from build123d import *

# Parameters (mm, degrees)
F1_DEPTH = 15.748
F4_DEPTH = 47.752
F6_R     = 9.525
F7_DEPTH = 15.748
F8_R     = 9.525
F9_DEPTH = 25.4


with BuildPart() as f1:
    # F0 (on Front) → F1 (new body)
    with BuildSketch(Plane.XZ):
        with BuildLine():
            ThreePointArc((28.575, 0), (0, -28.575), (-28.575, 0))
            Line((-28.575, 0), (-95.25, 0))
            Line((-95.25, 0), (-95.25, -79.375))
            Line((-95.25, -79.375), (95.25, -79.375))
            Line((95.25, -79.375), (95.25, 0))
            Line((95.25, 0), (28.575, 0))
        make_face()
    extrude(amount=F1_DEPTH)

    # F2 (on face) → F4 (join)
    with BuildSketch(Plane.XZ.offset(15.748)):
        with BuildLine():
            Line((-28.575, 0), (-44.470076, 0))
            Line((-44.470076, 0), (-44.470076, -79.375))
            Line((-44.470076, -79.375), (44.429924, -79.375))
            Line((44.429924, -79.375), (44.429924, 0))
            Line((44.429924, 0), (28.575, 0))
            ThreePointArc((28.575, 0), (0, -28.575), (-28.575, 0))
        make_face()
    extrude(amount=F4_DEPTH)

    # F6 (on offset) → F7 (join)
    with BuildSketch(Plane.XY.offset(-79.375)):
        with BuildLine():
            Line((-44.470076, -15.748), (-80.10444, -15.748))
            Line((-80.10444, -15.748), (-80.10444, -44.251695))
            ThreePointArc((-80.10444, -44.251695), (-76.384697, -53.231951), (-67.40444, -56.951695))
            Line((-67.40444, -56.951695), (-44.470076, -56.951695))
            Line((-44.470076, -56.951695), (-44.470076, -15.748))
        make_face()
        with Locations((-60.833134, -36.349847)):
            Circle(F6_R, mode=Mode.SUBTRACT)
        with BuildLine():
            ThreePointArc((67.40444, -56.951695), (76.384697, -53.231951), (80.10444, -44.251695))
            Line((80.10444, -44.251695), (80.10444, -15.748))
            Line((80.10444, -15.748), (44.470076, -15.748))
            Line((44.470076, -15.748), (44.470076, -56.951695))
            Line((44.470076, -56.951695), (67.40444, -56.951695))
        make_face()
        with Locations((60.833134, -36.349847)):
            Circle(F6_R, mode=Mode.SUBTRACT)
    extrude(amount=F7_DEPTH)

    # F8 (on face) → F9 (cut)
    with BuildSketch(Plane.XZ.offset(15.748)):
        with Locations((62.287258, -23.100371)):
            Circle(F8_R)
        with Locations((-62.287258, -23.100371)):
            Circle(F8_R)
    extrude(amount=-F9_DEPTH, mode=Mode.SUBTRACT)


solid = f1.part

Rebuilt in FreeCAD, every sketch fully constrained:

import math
import FreeCAD as App
import Part
import Sketcher

V = App.Vector
Q = App.Units.Quantity

doc = App.newDocument("Part")
body = doc.addObject("PartDesign::Body", "Body")

# Sketch on XZ plane
sketch1 = body.newObject("Sketcher::SketchObject", "Sketch")
sketch1.AttachmentSupport = (doc.getObject("XZ_Plane"), [""])
sketch1.MapMode = "FlatFace"
sketch1.addGeometry(Part.ArcOfCircle(Part.Circle(V(0, 0, 0), V(0, 0, 1), 28.575), math.radians(180), math.radians(360)), False)
sketch1.addGeometry(Part.LineSegment(V(-28.575, 0, 0), V(-95.25, 0, 0)), False)
sketch1.addGeometry(Part.LineSegment(V(-95.25, 0, 0), V(-95.25, -79.375, 0)), False)
sketch1.addGeometry(Part.LineSegment(V(-95.25, -79.375, 0), V(95.25, -79.375, 0)), False)
sketch1.addGeometry(Part.LineSegment(V(95.25, -79.375, 0), V(95.25, 0, 0)), False)
sketch1.addGeometry(Part.LineSegment(V(95.25, 0, 0), V(28.575, 0, 0)), False)
sketch1.addConstraint(Sketcher.Constraint("Coincident", 0, 1, 1, 1))
sketch1.addConstraint(Sketcher.Constraint("Coincident", 1, 2, 2, 1))
sketch1.addConstraint(Sketcher.Constraint("Coincident", 2, 2, 3, 1))
sketch1.addConstraint(Sketcher.Constraint("Coincident", 3, 2, 4, 1))
sketch1.addConstraint(Sketcher.Constraint("Coincident", 4, 2, 5, 1))
sketch1.addConstraint(Sketcher.Constraint("Coincident", 5, 2, 0, 2))
sketch1.addConstraint(Sketcher.Constraint("Horizontal", 1))
sketch1.addConstraint(Sketcher.Constraint("Vertical", 2))
sketch1.addConstraint(Sketcher.Constraint("Horizontal", 3))
sketch1.addConstraint(Sketcher.Constraint("Vertical", 4))
sketch1.addConstraint(Sketcher.Constraint("Horizontal", 5))
sketch1.addConstraint(Sketcher.Constraint("Coincident", 0, 3, -1, 1))
sketch1.addConstraint(Sketcher.Constraint("Symmetric", 1, 2, 4, 2, -1, 1))
sketch1.addConstraint(Sketcher.Constraint("PointOnObject", 0, 1, -1))
sketch1.addConstraint(Sketcher.Constraint("DistanceX", 3, 1, 3, 2, Q("7.5 in")))
sketch1.addConstraint(Sketcher.Constraint("Radius", 0, Q("1.125 in")))
sketch1.addConstraint(Sketcher.Constraint("DistanceY", 2, 2, 2, 1, Q("3.125 in")))
pad1 = body.newObject("PartDesign::Pad", "Pad")
pad1.Profile = sketch1
pad1.Length = Q("0.62 in")

# Sketch on XZ plane
sketch2 = body.newObject("Sketcher::SketchObject", "Sketch001")
sketch2.AttachmentSupport = (doc.getObject("XZ_Plane"), [""])
sketch2.MapMode = "FlatFace"
sketch2.AttachmentOffset = App.Placement(V(0, 0, 0.62 * 25.4), App.Rotation())
sketch2.addGeometry(Part.LineSegment(V(-28.575, 0, 0), V(-44.470076, 0, 0)), False)
sketch2.addGeometry(Part.LineSegment(V(-44.470076, 0, 0), V(-44.470076, -79.375, 0)), False)
sketch2.addGeometry(Part.LineSegment(V(-44.470076, -79.375, 0), V(44.429924, -79.375, 0)), False)
sketch2.addGeometry(Part.LineSegment(V(44.429924, -79.375, 0), V(44.429924, 0, 0)), False)
sketch2.addGeometry(Part.LineSegment(V(44.429924, 0, 0), V(28.575, 0, 0)), False)
sketch2.addGeometry(Part.ArcOfCircle(Part.Circle(V(0, 0, 0), V(0, 0, 1), 28.575), math.radians(180), math.radians(360)), False)
sketch2.addConstraint(Sketcher.Constraint("Coincident", 0, 2, 1, 1))
sketch2.addConstraint(Sketcher.Constraint("Coincident", 1, 2, 2, 1))
sketch2.addConstraint(Sketcher.Constraint("Coincident", 2, 2, 3, 1))
sketch2.addConstraint(Sketcher.Constraint("Coincident", 3, 2, 4, 1))
sketch2.addConstraint(Sketcher.Constraint("Coincident", 4, 2, 5, 2))
sketch2.addConstraint(Sketcher.Constraint("Coincident", 5, 1, 0, 1))
sketch2.addConstraint(Sketcher.Constraint("Horizontal", 0))
sketch2.addConstraint(Sketcher.Constraint("Vertical", 1))
sketch2.addConstraint(Sketcher.Constraint("Horizontal", 2))
sketch2.addConstraint(Sketcher.Constraint("Vertical", 3))
sketch2.addConstraint(Sketcher.Constraint("Horizontal", 4))
sketch2.addConstraint(Sketcher.Constraint("Coincident", 5, 3, -1, 1))
sketch2.addConstraint(Sketcher.Constraint("PointOnObject", 0, 2, -1))
sketch2.addConstraint(Sketcher.Constraint("PointOnObject", 3, 2, -1))
sketch2.addConstraint(Sketcher.Constraint("DistanceX", 2, 1, 2, 2, Q("3.5 in")))
sketch2.addConstraint(Sketcher.Constraint("Radius", 5, Q("1.125 in")))
sketch2.addConstraint(Sketcher.Constraint("DistanceY", 1, 2, 1, 1, Q("3.125 in")))
sketch2.addConstraint(Sketcher.Constraint("DistanceX", 0, 2, 0, 1, Q("15.895076 mm")))
pad2 = body.newObject("PartDesign::Pad", "Pad001")
pad2.Profile = sketch2
pad2.Length = Q("1.88 in")

# Sketch on XY plane
sketch3 = body.newObject("Sketcher::SketchObject", "Sketch002")
sketch3.AttachmentSupport = (doc.getObject("XY_Plane"), [""])
sketch3.MapMode = "FlatFace"
sketch3.AttachmentOffset = App.Placement(V(0, 0, -3.125 * 25.4), App.Rotation())
sketch3.addGeometry(Part.LineSegment(V(-44.470076, -15.748, 0), V(-80.10444, -15.748, 0)), False)
sketch3.addGeometry(Part.LineSegment(V(-80.10444, -15.748, 0), V(-80.10444, -44.251695, 0)), False)
sketch3.addGeometry(Part.ArcOfCircle(Part.Circle(V(-67.404441, -44.251696, 0), V(0, 0, 1), 12.699999), math.radians(179.999994), math.radians(270.000006)), False)
sketch3.addGeometry(Part.LineSegment(V(-67.40444, -56.951695, 0), V(-44.470076, -56.951695, 0)), False)
sketch3.addGeometry(Part.LineSegment(V(-44.470076, -56.951695, 0), V(-44.470076, -15.748, 0)), False)
sketch3.addGeometry(Part.Circle(V(-60.833134, -36.349847, 0), V(0, 0, 1), 9.525), False)
sketch3.addGeometry(Part.ArcOfCircle(Part.Circle(V(67.404441, -44.251696, 0), V(0, 0, 1), 12.699999), math.radians(-90.000006), math.radians(0.000006)), False)
sketch3.addGeometry(Part.LineSegment(V(80.10444, -44.251695, 0), V(80.10444, -15.748, 0)), False)
sketch3.addGeometry(Part.LineSegment(V(80.10444, -15.748, 0), V(44.470076, -15.748, 0)), False)
sketch3.addGeometry(Part.LineSegment(V(44.470076, -15.748, 0), V(44.470076, -56.951695, 0)), False)
sketch3.addGeometry(Part.LineSegment(V(44.470076, -56.951695, 0), V(67.40444, -56.951695, 0)), False)
sketch3.addGeometry(Part.Circle(V(60.833134, -36.349847, 0), V(0, 0, 1), 9.525), False)
sketch3.addConstraint(Sketcher.Constraint("Coincident", 0, 2, 1, 1))
sketch3.addConstraint(Sketcher.Constraint("Tangent", 1, 2, 2, 1))
sketch3.addConstraint(Sketcher.Constraint("Tangent", 2, 2, 3, 1))
sketch3.addConstraint(Sketcher.Constraint("Coincident", 3, 2, 4, 1))
sketch3.addConstraint(Sketcher.Constraint("Coincident", 4, 2, 0, 1))
sketch3.addConstraint(Sketcher.Constraint("Tangent", 6, 2, 7, 1))
sketch3.addConstraint(Sketcher.Constraint("Coincident", 7, 2, 8, 1))
sketch3.addConstraint(Sketcher.Constraint("Coincident", 8, 2, 9, 1))
sketch3.addConstraint(Sketcher.Constraint("Coincident", 9, 2, 10, 1))
sketch3.addConstraint(Sketcher.Constraint("Tangent", 10, 2, 6, 1))
sketch3.addConstraint(Sketcher.Constraint("Horizontal", 0))
sketch3.addConstraint(Sketcher.Constraint("Vertical", 1))
sketch3.addConstraint(Sketcher.Constraint("Horizontal", 3))
sketch3.addConstraint(Sketcher.Constraint("Vertical", 4))
sketch3.addConstraint(Sketcher.Constraint("Vertical", 7))
sketch3.addConstraint(Sketcher.Constraint("Horizontal", 8))
sketch3.addConstraint(Sketcher.Constraint("Vertical", 9))
sketch3.addConstraint(Sketcher.Constraint("Horizontal", 10))
sketch3.addConstraint(Sketcher.Constraint("Equal", 2, 6))
sketch3.addConstraint(Sketcher.Constraint("Equal", 5, 11))
sketch3.addConstraint(Sketcher.Constraint("Symmetric", 2, 3, 6, 3, -2))
sketch3.addConstraint(Sketcher.Constraint("Symmetric", 5, 3, 11, 3, -2))
sketch3.addConstraint(Sketcher.Constraint("Symmetric", 4, 2, 8, 2, -2))
sketch3.addConstraint(Sketcher.Constraint("Radius", 2, Q("0.4999999 in")))
sketch3.addConstraint(Sketcher.Constraint("Diameter", 5, Q("0.75 in")))
sketch3.addConstraint(Sketcher.Constraint("DistanceY", 0, 2, -1, 1, Q("0.62 in")))
sketch3.addConstraint(Sketcher.Constraint("DistanceX", 0, 2, 0, 1, Q("35.634364 mm")))
sketch3.addConstraint(Sketcher.Constraint("DistanceY", 1, 2, 1, 1, Q("28.503695 mm")))
sketch3.addConstraint(Sketcher.Constraint("DistanceX", 2, 3, -1, 1, Q("67.404441 mm")))
sketch3.addConstraint(Sketcher.Constraint("DistanceY", 2, 3, 5, 3, Q("7.901849 mm")))
sketch3.addConstraint(Sketcher.Constraint("DistanceX", 5, 3, 11, 3, Q("121.666268 mm")))
pad3 = body.newObject("PartDesign::Pad", "Pad002")
pad3.Profile = sketch3
pad3.Length = Q("0.62 in")

# Sketch on XZ plane
sketch4 = body.newObject("Sketcher::SketchObject", "Sketch003")
sketch4.AttachmentSupport = (doc.getObject("XZ_Plane"), [""])
sketch4.MapMode = "FlatFace"
sketch4.AttachmentOffset = App.Placement(V(0, 0, 0.62 * 25.4), App.Rotation())
sketch4.addGeometry(Part.Circle(V(62.287258, -23.100371, 0), V(0, 0, 1), 9.525), False)
sketch4.addGeometry(Part.Circle(V(-62.287258, -23.100371, 0), V(0, 0, 1), 9.525), False)
sketch4.addConstraint(Sketcher.Constraint("Equal", 0, 1))
sketch4.addConstraint(Sketcher.Constraint("Symmetric", 0, 3, 1, 3, -2))
sketch4.addConstraint(Sketcher.Constraint("Diameter", 0, Q("0.75 in")))
sketch4.addConstraint(Sketcher.Constraint("DistanceY", 0, 3, -1, 1, Q("23.100371 mm")))
sketch4.addConstraint(Sketcher.Constraint("DistanceX", -1, 1, 0, 3, Q("62.287258 mm")))
pocket1 = body.newObject("PartDesign::Pocket", "Pocket")
pocket1.Profile = sketch4
pocket1.Length = Q("1 in")

doc.recompute()
